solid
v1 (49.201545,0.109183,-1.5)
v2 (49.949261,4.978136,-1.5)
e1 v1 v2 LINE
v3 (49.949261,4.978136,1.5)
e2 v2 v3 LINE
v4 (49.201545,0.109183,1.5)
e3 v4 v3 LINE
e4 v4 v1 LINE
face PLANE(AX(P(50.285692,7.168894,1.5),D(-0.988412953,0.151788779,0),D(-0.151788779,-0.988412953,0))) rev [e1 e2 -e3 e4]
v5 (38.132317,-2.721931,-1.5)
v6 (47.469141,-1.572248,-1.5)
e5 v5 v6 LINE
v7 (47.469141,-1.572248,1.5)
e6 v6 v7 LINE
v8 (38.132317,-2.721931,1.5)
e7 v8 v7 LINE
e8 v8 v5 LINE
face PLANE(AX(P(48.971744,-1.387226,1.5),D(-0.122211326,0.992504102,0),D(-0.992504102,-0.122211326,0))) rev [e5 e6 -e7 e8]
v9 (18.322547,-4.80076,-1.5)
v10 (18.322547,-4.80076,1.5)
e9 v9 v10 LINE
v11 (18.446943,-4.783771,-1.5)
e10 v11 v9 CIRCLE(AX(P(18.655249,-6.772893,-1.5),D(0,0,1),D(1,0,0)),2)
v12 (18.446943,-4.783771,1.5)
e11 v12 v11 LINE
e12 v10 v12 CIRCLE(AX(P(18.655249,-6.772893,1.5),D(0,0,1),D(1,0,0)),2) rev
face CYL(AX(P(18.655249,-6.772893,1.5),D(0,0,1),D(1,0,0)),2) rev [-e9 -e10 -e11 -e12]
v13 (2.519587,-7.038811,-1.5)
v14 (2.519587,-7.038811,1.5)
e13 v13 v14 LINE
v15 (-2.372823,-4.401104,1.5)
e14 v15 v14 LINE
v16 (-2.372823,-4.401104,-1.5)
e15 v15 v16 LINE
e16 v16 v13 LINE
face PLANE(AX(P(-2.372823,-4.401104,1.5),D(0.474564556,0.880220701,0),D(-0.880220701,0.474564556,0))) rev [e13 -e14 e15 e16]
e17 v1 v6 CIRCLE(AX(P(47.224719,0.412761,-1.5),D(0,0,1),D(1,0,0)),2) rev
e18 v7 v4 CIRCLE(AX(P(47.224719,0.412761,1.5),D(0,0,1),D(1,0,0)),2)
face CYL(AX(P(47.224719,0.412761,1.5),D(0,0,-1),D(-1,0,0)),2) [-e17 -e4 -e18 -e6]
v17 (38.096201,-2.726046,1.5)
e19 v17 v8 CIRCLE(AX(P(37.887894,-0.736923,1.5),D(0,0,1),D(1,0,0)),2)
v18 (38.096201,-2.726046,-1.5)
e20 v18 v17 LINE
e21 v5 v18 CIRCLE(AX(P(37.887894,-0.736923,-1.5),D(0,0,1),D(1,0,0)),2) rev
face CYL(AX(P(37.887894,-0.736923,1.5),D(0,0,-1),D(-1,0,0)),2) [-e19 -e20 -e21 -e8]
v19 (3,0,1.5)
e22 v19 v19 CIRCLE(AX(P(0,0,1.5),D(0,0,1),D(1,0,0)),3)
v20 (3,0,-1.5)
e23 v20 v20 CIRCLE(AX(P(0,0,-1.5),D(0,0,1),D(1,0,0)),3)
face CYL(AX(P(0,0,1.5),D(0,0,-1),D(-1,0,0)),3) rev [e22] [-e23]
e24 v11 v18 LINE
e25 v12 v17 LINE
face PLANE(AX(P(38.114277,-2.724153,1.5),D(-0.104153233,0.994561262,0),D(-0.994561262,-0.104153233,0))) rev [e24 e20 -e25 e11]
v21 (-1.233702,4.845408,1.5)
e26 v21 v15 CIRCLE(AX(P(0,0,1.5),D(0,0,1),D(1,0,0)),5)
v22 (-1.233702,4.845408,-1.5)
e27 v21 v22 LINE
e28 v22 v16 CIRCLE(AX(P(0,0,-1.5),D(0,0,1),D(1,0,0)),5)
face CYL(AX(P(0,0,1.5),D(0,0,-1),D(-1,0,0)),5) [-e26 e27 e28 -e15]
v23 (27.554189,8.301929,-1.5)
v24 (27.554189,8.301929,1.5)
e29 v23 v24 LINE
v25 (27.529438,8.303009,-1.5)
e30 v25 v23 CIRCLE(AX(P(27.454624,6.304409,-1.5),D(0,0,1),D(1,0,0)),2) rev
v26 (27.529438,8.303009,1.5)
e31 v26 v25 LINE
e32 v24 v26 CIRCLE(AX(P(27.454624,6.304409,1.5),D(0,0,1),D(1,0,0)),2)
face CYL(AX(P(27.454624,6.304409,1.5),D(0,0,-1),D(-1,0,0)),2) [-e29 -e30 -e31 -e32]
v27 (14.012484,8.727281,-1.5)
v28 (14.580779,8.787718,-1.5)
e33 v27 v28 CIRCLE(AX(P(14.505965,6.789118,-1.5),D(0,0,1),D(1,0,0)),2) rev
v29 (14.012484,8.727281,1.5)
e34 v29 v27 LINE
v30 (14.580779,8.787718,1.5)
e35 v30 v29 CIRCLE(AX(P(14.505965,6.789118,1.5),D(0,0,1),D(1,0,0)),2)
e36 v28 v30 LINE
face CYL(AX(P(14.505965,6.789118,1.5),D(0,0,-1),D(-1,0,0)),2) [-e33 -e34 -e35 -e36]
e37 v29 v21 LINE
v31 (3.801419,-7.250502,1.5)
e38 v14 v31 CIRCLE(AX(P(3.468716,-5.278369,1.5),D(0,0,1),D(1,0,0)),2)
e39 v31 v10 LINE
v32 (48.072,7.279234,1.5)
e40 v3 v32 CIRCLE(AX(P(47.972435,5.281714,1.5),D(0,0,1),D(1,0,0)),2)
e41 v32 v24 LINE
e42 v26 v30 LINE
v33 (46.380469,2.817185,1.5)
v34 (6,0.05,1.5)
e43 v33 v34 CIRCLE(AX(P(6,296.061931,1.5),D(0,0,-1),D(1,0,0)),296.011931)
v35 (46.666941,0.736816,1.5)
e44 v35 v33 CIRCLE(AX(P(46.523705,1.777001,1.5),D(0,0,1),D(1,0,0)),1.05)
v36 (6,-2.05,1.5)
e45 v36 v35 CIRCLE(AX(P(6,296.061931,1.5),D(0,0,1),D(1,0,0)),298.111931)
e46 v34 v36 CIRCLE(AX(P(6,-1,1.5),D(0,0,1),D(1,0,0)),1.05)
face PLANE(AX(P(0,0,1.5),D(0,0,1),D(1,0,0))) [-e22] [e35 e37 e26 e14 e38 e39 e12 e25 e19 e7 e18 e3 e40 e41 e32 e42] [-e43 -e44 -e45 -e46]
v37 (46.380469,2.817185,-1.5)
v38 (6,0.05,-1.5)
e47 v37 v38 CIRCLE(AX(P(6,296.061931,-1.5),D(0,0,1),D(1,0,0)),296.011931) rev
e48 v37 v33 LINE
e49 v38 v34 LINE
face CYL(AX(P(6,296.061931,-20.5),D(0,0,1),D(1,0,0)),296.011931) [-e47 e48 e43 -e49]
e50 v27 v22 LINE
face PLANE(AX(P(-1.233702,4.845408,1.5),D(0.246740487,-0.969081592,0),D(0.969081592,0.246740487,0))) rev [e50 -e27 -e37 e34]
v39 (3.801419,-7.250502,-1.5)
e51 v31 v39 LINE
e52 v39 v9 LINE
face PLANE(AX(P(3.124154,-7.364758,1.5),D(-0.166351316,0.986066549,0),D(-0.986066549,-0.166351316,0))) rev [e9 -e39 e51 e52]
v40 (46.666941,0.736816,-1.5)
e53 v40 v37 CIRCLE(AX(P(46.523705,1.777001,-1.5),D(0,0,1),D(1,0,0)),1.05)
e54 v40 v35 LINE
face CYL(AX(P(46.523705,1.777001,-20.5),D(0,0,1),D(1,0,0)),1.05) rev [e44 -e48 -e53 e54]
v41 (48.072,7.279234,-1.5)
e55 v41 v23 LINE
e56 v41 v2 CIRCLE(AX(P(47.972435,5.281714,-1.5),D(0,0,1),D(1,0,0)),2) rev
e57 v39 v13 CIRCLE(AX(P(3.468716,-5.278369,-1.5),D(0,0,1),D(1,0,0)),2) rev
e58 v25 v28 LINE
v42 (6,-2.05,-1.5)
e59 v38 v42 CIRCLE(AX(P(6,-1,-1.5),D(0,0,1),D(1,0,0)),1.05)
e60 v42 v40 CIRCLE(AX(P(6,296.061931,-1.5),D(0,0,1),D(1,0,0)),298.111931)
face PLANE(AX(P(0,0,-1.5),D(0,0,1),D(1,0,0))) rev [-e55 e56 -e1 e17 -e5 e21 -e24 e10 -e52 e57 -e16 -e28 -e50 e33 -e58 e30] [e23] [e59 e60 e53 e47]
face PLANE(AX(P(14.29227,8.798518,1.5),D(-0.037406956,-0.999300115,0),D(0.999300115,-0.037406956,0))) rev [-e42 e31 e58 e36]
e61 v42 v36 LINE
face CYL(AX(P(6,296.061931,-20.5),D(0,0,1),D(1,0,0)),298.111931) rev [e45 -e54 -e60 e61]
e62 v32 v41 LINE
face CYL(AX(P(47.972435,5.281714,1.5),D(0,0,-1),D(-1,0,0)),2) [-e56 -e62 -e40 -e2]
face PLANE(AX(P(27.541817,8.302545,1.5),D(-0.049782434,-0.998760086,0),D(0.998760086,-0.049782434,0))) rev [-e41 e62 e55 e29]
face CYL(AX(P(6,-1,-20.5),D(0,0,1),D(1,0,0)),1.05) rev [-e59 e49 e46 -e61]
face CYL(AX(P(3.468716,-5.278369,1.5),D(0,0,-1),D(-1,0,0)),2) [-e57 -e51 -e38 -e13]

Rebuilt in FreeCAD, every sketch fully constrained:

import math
import FreeCAD as App
import Part
import Sketcher
from FreeCAD import Vector
Q = App.Units.Quantity


def edges_at(feature, points):
    """Names of the edges that pass closest to the given points."""
    edges = feature.Shape.Edges
    near = lambda p: min(range(len(edges)), key=lambda i: edges[i].distToShape(Part.Vertex(*p))[0])
    return sorted({f"Edge{near(p) + 1}" for p in points})

doc = App.newDocument("Part")
body = doc.addObject("PartDesign::Body", "Body")

# Sketch on XY plane
sketch1 = doc.addObject("Sketcher::SketchObject", "Sketch")
body.addObject(sketch1)
sketch1.AttachmentSupport = (doc.XY_Plane, [""])
sketch1.MapMode = "FlatFace"
sketch1.addGeometry(Part.LineSegment(Vector(14.29227, 8.798518, 0), Vector(-1.233702, 4.845408, 0)), False)
sketch1.addGeometry(Part.ArcOfCircle(Part.Circle(Vector(0, 0, 0), Vector(0, 0, 1), 5), math.radians(104.284714), math.radians(241.668998)), False)
sketch1.addGeometry(Part.LineSegment(Vector(-2.372823, -4.401104, 0), Vector(3.124154, -7.364758, 0)), False)
sketch1.addGeometry(Part.LineSegment(Vector(3.124154, -7.364758, 0), Vector(18.384478, -4.790312, 0)), False)
sketch1.addGeometry(Part.LineSegment(Vector(18.384478, -4.790312, 0), Vector(38.114277, -2.724153, 0)), False)
sketch1.addGeometry(Part.LineSegment(Vector(38.114277, -2.724153, 0), Vector(48.971744, -1.387226, 0)), False)
sketch1.addGeometry(Part.LineSegment(Vector(48.971744, -1.387226, 0), Vector(50.285692, 7.168894, 0)), False)
sketch1.addGeometry(Part.LineSegment(Vector(50.285692, 7.168894, 0), Vector(27.541817, 8.302545, 0)), False)
sketch1.addGeometry(Part.LineSegment(Vector(27.541817, 8.302545, 0), Vector(14.29227, 8.798518, 0)), False)
sketch1.addGeometry(Part.Circle(Vector(0, 0, 0), Vector(0, 0, 1), 3), False)
sketch1.addConstraint(Sketcher.Constraint("Tangent", 0, 2, 1, 1))
sketch1.addConstraint(Sketcher.Constraint("Tangent", 1, 2, 2, 1))
sketch1.addConstraint(Sketcher.Constraint("Coincident", 2, 2, 3, 1))
sketch1.addConstraint(Sketcher.Constraint("Coincident", 3, 2, 4, 1))
sketch1.addConstraint(Sketcher.Constraint("Coincident", 4, 2, 5, 1))
sketch1.addConstraint(Sketcher.Constraint("Coincident", 5, 2, 6, 1))
sketch1.addConstraint(Sketcher.Constraint("Coincident", 6, 2, 7, 1))
sketch1.addConstraint(Sketcher.Constraint("Coincident", 7, 2, 8, 1))
sketch1.addConstraint(Sketcher.Constraint("Coincident", 8, 2, 0, 1))
sketch1.addConstraint(Sketcher.Constraint("Coincident", 1, 3, -1, 1))
sketch1.addConstraint(Sketcher.Constraint("Coincident", 9, 3, -1, 1))
sketch1.addConstraint(Sketcher.Constraint("Diameter", 9, Q("6 mm")))
sketch1.addConstraint(Sketcher.Constraint("Radius", 1, Q("5 mm")))
sketch1.addConstraint(Sketcher.Constraint("DistanceX", 1, 2, 3, 2, Q("20.757301 mm")))
sketch1.addConstraint(Sketcher.Constraint("DistanceX", 3, 2, 4, 2, Q("19.729799 mm")))
sketch1.addConstraint(Sketcher.Constraint("Distance", 4, Q("19.837691 mm")))
sketch1.addConstraint(Sketcher.Constraint("Distance", 7, Q("22.77211 mm")))
sketch1.addConstraint(Sketcher.Constraint("DistanceY", 2, 2, -1, 1, Q("7.364758 mm")))
sketch1.addConstraint(Sketcher.Constraint("DistanceX", -1, 1, 3, 2, Q("18.384478 mm")))
sketch1.addConstraint(Sketcher.Constraint("DistanceX", -1, 1, 6, 2, Q("50.285692 mm")))
sketch1.addConstraint(Sketcher.Constraint("DistanceX", -1, 1, 8, 2, Q("14.29227 mm")))
sketch1.addConstraint(Sketcher.Constraint("DistanceX", 1, 2, 0, 2, Q("1.13912 mm")))
sketch1.addConstraint(Sketcher.Constraint("DistanceY", 3, 2, 1, 2, Q("0.389209 mm")))
sketch1.addConstraint(Sketcher.Constraint("DistanceX", 2, 2, 5, 2, Q("45.84759 mm")))
sketch1.addConstraint(Sketcher.Constraint("DistanceY", 5, 2, 6, 2, Q("8.55612 mm")))
sketch1.addConstraint(Sketcher.Constraint("DistanceX", 7, 2, 4, 2, Q("10.572461 mm")))
sketch1.addConstraint(Sketcher.Constraint("Distance", 5, Q("10.939468 mm")))
pad1 = doc.addObject("PartDesign::Pad", "Pad")
body.addObject(pad1)
pad1.Profile = sketch1
pad1.Length = 3
pad1.Midplane = True

# Sketch on XY plane
sketch2 = doc.addObject("Sketcher::SketchObject", "Sketch001")
body.addObject(sketch2)
sketch2.AttachmentSupport = (doc.XY_Plane, [""])
sketch2.MapMode = "FlatFace"
sketch2.AttachmentOffset = App.Placement(Vector(0, 0, 1.5), App.Rotation())
sketch2.addGeometry(Part.ArcOfCircle(Part.Circle(Vector(6, 296.061931, 0), Vector(0, 0, 1), 298.111931), math.radians(-90), math.radians(-82.159549)), False)
sketch2.addGeometry(Part.ArcOfCircle(Part.Circle(Vector(46.523705, 1.777001, 0), Vector(0, 0, 1), 1.05), math.radians(-82.159549), math.radians(97.840451)), False)
sketch2.addGeometry(Part.ArcOfCircle(Part.Circle(Vector(6, 296.061931, 0), Vector(0, 0, 1), 296.011931), math.radians(-90), math.radians(-82.159549)), False)
sketch2.addGeometry(Part.ArcOfCircle(Part.Circle(Vector(6, -1, 0), Vector(0, 0, 1), 1.05), math.radians(90), math.radians(270)), False)
sketch2.addConstraint(Sketcher.Constraint("Tangent", 0, 2, 1, 1))
sketch2.addConstraint(Sketcher.Constraint("Tangent", 1, 2, 2, 2))
sketch2.addConstraint(Sketcher.Constraint("Tangent", 2, 1, 3, 1))
sketch2.addConstraint(Sketcher.Constraint("Tangent", 3, 2, 0, 1))
sketch2.addConstraint(Sketcher.Constraint("Coincident", 2, 3, 0, 3))
sketch2.addConstraint(Sketcher.Constraint("Vertical", 2, 3, 3, 3))
sketch2.addConstraint(Sketcher.Constraint("Radius", 1, Q("1.05 mm")))
sketch2.addConstraint(Sketcher.Constraint("DistanceX", -1, 1, 0, 3, Q("6 mm")))
sketch2.addConstraint(Sketcher.Constraint("DistanceY", 3, 3, -1, 1, Q("1 mm")))
sketch2.addConstraint(Sketcher.Constraint("Radius", 0, Q("298.111931 mm")))
sketch2.addConstraint(Sketcher.Constraint("DistanceY", -1, 1, 1, 3, Q("1.777001 mm")))
pocket1 = doc.addObject("PartDesign::Pocket", "Pocket")
body.addObject(pocket1)
pocket1.Profile = sketch2
pocket1.Length = 22
doc.recompute()

fillet = doc.addObject("PartDesign::Fillet", "Fillet")
body.addObject(fillet)
fillet.Base = (pocket1, edges_at(pocket1, [
    (14.292, 8.799, 0),
    (27.542, 8.303, 0),
    (50.286, 7.169, 0),
    (48.972, -1.387, 0),
    (38.114, -2.724, 0),
    (18.384, -4.79, 0),
    (3.124, -7.365, 0),
]))
fillet.Radius = 2

doc.recompute()
